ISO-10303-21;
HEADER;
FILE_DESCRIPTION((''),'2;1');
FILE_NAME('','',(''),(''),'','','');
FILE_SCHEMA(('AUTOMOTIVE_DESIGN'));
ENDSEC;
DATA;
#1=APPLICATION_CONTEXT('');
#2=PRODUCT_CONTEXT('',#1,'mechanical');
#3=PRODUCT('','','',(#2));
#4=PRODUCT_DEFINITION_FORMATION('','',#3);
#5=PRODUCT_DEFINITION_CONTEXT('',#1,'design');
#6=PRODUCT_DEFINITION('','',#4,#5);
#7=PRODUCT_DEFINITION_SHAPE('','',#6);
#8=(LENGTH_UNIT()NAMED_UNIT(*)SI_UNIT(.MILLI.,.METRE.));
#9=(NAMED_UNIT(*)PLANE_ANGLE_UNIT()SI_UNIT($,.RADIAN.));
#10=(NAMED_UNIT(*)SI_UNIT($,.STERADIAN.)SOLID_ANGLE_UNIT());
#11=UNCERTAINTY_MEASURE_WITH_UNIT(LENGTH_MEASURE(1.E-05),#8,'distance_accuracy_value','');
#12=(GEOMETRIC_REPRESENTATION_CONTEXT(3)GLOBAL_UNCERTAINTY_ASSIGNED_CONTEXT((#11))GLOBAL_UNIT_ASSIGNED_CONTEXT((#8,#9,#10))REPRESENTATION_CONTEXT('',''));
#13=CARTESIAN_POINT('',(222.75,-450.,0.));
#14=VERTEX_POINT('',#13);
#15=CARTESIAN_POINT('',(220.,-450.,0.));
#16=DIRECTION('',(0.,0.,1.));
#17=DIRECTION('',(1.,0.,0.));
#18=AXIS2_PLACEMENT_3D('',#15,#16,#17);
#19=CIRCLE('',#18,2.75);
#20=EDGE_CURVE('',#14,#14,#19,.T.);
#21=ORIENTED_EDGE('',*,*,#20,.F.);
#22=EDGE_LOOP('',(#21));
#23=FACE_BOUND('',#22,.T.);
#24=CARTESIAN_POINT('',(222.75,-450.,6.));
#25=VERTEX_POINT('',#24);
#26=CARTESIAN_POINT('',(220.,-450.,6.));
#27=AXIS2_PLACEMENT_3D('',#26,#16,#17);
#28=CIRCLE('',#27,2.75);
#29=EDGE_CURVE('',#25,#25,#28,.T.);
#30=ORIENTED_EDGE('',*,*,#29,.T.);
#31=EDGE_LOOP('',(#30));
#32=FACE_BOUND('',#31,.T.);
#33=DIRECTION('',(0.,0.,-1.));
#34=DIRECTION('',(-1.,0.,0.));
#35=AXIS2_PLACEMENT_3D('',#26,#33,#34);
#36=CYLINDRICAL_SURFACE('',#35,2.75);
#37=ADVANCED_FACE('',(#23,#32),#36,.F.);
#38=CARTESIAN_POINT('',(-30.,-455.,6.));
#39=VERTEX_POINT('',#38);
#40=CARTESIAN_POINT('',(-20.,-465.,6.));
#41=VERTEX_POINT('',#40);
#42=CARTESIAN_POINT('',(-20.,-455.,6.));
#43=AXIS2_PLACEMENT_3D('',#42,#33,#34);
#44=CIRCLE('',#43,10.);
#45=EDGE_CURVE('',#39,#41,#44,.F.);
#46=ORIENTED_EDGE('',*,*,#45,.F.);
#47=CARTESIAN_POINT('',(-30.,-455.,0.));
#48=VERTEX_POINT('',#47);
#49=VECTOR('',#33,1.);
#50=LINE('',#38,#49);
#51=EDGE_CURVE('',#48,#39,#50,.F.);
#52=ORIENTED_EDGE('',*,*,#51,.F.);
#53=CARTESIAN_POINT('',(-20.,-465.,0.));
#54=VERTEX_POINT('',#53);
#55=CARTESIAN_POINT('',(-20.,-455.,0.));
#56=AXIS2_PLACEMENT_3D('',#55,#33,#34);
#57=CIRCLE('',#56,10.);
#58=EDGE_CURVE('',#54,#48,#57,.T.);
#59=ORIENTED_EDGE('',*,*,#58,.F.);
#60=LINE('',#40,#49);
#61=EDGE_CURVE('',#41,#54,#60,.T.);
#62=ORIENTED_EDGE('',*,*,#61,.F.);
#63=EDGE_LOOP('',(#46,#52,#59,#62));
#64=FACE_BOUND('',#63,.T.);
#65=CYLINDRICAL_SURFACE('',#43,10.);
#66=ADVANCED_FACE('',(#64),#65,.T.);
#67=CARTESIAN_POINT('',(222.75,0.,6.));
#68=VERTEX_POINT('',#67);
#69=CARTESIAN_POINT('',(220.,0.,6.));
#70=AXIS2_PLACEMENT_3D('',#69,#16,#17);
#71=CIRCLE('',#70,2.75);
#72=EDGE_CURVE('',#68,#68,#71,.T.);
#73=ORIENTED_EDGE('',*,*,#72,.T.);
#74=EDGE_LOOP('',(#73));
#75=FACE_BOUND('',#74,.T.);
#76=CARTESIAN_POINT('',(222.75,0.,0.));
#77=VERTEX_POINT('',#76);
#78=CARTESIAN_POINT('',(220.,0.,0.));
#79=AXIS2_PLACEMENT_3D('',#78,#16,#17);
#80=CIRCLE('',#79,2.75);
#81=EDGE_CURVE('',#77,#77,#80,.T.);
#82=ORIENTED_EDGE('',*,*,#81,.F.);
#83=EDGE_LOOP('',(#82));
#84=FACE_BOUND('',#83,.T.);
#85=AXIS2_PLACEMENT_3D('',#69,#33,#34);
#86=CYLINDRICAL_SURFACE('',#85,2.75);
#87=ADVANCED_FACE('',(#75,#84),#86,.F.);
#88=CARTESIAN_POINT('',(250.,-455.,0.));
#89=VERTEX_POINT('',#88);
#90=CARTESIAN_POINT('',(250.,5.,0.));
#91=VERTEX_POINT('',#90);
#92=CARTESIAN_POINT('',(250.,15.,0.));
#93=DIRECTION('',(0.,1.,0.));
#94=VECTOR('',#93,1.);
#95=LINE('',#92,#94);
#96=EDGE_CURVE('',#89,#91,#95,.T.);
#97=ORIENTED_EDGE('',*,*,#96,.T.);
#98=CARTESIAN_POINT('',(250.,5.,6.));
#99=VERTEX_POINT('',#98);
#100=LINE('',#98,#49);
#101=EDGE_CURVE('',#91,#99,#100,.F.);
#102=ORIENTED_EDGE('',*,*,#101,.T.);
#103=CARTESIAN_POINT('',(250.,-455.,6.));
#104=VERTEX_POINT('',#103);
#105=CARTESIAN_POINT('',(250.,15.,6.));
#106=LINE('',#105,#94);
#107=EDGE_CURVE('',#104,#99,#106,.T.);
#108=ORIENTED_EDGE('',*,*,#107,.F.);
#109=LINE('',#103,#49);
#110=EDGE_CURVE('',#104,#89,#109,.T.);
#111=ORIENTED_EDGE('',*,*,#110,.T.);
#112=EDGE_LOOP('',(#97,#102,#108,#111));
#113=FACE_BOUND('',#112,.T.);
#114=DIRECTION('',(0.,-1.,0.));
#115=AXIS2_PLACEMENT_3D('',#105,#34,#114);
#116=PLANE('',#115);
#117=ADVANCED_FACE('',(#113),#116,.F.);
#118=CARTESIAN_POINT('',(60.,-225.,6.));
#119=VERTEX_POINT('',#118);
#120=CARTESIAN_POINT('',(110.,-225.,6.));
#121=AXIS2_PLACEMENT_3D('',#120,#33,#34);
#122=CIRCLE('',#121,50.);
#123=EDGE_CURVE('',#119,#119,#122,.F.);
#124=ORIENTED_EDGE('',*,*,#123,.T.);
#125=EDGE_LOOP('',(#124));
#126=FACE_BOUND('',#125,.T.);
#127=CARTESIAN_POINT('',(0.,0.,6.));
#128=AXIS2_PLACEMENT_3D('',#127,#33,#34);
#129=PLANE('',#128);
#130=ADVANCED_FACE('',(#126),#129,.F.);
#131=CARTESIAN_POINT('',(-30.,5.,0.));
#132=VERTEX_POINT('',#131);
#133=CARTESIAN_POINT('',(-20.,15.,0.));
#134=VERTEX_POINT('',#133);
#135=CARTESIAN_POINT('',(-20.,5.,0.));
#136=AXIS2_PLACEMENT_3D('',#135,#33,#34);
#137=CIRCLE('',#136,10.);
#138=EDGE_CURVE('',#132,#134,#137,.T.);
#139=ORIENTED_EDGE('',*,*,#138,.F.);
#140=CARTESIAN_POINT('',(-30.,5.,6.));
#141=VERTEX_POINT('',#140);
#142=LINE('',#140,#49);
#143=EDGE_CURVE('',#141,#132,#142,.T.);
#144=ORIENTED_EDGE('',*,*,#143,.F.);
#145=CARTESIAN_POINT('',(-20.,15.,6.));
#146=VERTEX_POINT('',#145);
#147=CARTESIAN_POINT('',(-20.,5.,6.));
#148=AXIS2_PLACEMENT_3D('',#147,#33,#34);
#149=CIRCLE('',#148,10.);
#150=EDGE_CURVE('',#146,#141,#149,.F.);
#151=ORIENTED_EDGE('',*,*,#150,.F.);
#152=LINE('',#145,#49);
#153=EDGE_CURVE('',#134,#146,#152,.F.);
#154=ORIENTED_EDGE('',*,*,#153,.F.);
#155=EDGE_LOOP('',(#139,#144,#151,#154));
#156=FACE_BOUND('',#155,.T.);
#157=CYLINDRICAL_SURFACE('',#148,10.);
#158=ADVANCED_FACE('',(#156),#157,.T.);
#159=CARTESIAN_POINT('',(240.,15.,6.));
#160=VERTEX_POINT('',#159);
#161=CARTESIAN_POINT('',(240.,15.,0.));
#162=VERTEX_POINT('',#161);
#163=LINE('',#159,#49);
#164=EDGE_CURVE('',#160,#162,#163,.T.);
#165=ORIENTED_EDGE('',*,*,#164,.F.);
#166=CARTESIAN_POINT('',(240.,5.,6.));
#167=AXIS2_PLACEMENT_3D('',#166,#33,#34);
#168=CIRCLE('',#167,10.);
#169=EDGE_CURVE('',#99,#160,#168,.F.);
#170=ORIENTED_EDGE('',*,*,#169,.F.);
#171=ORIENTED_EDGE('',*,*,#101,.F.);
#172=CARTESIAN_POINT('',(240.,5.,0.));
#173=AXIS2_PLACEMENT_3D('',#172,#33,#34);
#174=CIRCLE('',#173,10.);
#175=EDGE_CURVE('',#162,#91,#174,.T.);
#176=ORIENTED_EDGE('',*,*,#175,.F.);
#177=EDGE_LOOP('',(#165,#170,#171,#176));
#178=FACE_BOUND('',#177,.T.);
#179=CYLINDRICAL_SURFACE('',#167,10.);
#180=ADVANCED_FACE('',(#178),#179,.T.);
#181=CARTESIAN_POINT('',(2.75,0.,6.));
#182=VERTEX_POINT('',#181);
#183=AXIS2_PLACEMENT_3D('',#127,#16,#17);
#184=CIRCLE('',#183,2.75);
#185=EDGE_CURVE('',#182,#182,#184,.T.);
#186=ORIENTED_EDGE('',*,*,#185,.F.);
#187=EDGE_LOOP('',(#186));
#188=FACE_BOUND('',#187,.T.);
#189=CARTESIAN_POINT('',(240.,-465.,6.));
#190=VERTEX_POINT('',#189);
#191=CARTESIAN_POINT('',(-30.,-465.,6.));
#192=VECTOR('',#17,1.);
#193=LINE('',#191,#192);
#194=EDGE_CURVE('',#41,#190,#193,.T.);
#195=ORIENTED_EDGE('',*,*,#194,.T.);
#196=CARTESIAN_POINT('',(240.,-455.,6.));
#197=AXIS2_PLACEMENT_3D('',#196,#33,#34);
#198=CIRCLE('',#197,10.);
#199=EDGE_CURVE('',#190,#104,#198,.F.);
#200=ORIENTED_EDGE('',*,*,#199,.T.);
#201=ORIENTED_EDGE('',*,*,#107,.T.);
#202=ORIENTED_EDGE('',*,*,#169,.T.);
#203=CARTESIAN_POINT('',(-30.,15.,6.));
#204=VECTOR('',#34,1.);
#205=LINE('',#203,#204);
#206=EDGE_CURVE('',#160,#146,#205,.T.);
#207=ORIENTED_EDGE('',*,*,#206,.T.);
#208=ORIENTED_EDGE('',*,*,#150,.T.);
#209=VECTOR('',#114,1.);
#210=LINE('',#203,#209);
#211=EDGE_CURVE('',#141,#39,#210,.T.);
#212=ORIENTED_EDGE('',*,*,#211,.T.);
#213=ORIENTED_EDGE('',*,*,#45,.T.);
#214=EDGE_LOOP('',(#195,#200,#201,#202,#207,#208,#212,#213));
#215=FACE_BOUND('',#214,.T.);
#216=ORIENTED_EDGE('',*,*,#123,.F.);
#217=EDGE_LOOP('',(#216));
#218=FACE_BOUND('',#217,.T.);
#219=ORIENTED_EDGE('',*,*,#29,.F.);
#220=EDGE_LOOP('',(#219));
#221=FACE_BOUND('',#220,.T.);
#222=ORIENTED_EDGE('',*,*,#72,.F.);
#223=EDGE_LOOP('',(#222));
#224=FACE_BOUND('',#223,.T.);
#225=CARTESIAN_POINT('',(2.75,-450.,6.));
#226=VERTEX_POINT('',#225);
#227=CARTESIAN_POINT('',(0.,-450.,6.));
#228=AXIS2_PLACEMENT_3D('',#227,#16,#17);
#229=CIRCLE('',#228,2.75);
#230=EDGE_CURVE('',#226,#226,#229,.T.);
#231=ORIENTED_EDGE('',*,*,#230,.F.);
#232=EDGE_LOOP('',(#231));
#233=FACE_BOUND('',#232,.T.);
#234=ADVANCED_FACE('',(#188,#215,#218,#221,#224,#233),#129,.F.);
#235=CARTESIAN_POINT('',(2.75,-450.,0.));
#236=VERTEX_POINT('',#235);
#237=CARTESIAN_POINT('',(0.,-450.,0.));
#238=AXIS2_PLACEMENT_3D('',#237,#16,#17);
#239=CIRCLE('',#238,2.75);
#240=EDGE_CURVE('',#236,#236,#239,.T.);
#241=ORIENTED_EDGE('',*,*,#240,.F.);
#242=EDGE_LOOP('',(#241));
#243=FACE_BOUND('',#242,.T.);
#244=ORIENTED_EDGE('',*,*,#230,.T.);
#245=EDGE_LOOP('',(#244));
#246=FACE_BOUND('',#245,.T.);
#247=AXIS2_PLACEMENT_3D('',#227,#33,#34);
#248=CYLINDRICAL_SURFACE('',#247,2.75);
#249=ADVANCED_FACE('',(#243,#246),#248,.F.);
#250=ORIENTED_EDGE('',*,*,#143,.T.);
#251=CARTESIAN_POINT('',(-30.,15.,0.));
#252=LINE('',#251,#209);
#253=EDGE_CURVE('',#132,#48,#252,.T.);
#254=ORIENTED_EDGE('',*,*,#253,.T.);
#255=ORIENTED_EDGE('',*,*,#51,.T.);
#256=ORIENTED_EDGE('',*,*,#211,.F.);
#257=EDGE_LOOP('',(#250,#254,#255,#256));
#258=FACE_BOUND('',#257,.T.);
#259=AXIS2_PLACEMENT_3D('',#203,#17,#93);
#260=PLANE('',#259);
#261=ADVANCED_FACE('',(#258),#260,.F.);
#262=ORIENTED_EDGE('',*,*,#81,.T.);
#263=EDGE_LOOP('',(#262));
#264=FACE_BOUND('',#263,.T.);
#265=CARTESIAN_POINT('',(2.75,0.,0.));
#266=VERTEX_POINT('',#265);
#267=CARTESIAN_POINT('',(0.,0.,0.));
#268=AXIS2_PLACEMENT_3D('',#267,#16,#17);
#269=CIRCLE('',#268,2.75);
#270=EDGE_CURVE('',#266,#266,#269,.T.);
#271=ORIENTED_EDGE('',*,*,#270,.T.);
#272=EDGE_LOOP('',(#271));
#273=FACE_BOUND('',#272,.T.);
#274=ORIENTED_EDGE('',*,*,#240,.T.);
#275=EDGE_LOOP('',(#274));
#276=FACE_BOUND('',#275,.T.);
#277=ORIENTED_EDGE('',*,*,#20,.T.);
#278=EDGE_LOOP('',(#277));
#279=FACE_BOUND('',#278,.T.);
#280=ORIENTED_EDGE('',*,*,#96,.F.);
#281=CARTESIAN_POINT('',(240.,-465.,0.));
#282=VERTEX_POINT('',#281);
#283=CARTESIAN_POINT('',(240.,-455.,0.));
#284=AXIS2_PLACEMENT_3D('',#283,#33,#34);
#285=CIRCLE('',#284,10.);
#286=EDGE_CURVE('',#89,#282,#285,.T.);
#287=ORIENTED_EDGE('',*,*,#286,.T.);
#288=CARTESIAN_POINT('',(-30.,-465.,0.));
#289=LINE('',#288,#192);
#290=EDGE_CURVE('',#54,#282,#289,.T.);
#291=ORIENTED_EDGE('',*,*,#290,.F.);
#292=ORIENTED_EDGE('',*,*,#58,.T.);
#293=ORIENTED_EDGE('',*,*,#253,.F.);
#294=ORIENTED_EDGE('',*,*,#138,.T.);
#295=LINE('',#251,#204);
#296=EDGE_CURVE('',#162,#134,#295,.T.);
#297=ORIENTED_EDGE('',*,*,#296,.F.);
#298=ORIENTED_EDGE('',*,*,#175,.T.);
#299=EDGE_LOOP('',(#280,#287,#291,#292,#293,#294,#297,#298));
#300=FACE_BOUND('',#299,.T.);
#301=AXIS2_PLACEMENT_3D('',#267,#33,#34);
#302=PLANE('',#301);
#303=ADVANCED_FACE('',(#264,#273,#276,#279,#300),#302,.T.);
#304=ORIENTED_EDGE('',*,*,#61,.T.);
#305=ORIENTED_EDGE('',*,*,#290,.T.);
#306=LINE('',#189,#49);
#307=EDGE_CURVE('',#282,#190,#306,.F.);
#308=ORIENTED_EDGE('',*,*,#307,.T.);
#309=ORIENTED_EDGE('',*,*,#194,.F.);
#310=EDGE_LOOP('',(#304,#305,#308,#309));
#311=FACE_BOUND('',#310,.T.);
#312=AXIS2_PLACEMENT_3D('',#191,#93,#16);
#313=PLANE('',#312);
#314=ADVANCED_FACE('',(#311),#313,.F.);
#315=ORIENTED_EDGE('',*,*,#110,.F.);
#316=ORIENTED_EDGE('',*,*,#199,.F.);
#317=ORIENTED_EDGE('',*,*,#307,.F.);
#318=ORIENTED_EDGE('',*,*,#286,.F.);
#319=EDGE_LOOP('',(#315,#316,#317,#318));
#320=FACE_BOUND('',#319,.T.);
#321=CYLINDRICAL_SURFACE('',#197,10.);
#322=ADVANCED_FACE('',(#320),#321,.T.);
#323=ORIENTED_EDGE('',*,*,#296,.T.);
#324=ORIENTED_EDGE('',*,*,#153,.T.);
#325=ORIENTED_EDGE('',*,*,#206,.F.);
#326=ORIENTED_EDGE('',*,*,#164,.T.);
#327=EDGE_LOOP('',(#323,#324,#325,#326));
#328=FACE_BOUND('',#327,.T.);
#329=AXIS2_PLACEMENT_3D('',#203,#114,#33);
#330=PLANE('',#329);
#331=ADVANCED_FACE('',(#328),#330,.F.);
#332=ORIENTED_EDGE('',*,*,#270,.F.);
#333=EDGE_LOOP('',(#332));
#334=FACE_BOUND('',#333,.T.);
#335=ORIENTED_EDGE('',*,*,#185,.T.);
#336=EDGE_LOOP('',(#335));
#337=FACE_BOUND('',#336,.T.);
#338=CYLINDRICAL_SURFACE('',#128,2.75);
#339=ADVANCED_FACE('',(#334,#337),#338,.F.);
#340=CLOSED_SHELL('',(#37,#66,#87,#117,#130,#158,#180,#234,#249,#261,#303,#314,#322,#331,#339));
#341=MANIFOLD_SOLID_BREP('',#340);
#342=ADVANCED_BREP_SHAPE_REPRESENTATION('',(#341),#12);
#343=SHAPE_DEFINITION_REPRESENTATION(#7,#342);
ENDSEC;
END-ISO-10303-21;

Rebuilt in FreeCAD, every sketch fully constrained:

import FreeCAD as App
import Part
import Sketcher

V = App.Vector
Q = App.Units.Quantity


def edges_at(feature, points):
    """Names of the edges that pass closest to the given points."""
    edges = feature.Shape.Edges
    near = lambda p: min(range(len(edges)), key=lambda i: edges[i].distToShape(Part.Vertex(*p))[0])
    return sorted({f"Edge{near(p) + 1}" for p in points})

doc = App.newDocument("Part")
params = doc.addObject("Spreadsheet::Sheet", "Params")
for row, (alias, value) in enumerate([
    ("sketch1_diameter", "5.5 mm"),
    ("sketch1_width", "280 mm"),
    ("sketch1_height", "480 mm"),
    ("pad1_length", "6 mm"),
    ("fillet_radius", "10 mm"),
], start=1):
    params.set(f"A{row}", alias)
    params.set(f"B{row}", "=" + value)
    params.setAlias(f"B{row}", alias)

body = doc.addObject("PartDesign::Body", "Body")

# Sketch on XY plane
sketch1 = body.newObject("Sketcher::SketchObject", "Sketch")
sketch1.AttachmentSupport = (doc.getObject("XY_Plane"), [""])
sketch1.MapMode = "FlatFace"
sketch1.addGeometry([
    Part.LineSegment(V(-30, 15, 0), V(-30, -465, 0)),  # 0
    Part.LineSegment(V(-30, -465, 0), V(250, -465, 0)),  # 1
    Part.LineSegment(V(250, -465, 0), V(250, 15, 0)),  # 2
    Part.LineSegment(V(250, 15, 0), V(-30, 15, 0)),  # 3
    Part.Circle(V(0, -450, 0), V(0, 0, 1), 2.75),  # 4
    Part.Circle(V(220, -450, 0), V(0, 0, 1), 2.75),  # 5
    Part.Circle(V(0, 0, 0), V(0, 0, 1), 2.75),  # 6
    Part.Circle(V(220, 0, 0), V(0, 0, 1), 2.75),  # 7
], False)
sketch1.addConstraint([
    Sketcher.Constraint("Coincident", 0, 2, 1, 1),
    Sketcher.Constraint("Coincident", 1, 2, 2, 1),
    Sketcher.Constraint("Coincident", 2, 2, 3, 1),
    Sketcher.Constraint("Coincident", 3, 2, 0, 1),
    Sketcher.Constraint("Vertical", 0),
    Sketcher.Constraint("Horizontal", 1),
    Sketcher.Constraint("Vertical", 2),
    Sketcher.Constraint("Horizontal", 3),
    Sketcher.Constraint("Coincident", 6, 3, -1, 1),
    Sketcher.Constraint("Equal", 4, 5),
    Sketcher.Constraint("Equal", 5, 6),
    Sketcher.Constraint("Equal", 6, 7),
    Sketcher.Constraint("PointOnObject", 4, 3, -2),
    Sketcher.Constraint("PointOnObject", 7, 3, -1),
    Sketcher.Constraint("Horizontal", 4, 3, 5, 3),
    Sketcher.Constraint("Vertical", 5, 3, 7, 3),
    Sketcher.Constraint("Diameter", 4, Q("5.5 mm")),
    Sketcher.Constraint("DistanceX", 1, 1, 1, 2, Q("280 mm")),
    Sketcher.Constraint("DistanceY", 0, 2, 0, 1, Q("480 mm")),
    Sketcher.Constraint("DistanceY", 4, 3, -1, 1, Q("450 mm")),
    Sketcher.Constraint("DistanceX", -1, 1, 5, 3, Q("220 mm")),
    Sketcher.Constraint("DistanceX", 0, 2, -1, 1, Q("30 mm")),
    Sketcher.Constraint("DistanceY", 0, 2, -1, 1, Q("465 mm")),
])
sketch1.setExpression("Constraints[16]", "Params.sketch1_diameter")
sketch1.setExpression("Constraints[17]", "Params.sketch1_width")
sketch1.setExpression("Constraints[18]", "Params.sketch1_height")
pad1 = body.newObject("PartDesign::Pad", "Pad")
pad1.Profile = sketch1
pad1.setExpression("Length", "Params.pad1_length")
doc.recompute()

fillet = body.newObject("PartDesign::Fillet", "Fillet")
fillet.Base = (pad1, edges_at(pad1, [
    (250, 15, 3),
    (250, -465, 3),
    (-30, -465, 3),
    (-30, 15, 3),
]))
fillet.setExpression("Radius", "Params.fillet_radius")

doc.recompute()
